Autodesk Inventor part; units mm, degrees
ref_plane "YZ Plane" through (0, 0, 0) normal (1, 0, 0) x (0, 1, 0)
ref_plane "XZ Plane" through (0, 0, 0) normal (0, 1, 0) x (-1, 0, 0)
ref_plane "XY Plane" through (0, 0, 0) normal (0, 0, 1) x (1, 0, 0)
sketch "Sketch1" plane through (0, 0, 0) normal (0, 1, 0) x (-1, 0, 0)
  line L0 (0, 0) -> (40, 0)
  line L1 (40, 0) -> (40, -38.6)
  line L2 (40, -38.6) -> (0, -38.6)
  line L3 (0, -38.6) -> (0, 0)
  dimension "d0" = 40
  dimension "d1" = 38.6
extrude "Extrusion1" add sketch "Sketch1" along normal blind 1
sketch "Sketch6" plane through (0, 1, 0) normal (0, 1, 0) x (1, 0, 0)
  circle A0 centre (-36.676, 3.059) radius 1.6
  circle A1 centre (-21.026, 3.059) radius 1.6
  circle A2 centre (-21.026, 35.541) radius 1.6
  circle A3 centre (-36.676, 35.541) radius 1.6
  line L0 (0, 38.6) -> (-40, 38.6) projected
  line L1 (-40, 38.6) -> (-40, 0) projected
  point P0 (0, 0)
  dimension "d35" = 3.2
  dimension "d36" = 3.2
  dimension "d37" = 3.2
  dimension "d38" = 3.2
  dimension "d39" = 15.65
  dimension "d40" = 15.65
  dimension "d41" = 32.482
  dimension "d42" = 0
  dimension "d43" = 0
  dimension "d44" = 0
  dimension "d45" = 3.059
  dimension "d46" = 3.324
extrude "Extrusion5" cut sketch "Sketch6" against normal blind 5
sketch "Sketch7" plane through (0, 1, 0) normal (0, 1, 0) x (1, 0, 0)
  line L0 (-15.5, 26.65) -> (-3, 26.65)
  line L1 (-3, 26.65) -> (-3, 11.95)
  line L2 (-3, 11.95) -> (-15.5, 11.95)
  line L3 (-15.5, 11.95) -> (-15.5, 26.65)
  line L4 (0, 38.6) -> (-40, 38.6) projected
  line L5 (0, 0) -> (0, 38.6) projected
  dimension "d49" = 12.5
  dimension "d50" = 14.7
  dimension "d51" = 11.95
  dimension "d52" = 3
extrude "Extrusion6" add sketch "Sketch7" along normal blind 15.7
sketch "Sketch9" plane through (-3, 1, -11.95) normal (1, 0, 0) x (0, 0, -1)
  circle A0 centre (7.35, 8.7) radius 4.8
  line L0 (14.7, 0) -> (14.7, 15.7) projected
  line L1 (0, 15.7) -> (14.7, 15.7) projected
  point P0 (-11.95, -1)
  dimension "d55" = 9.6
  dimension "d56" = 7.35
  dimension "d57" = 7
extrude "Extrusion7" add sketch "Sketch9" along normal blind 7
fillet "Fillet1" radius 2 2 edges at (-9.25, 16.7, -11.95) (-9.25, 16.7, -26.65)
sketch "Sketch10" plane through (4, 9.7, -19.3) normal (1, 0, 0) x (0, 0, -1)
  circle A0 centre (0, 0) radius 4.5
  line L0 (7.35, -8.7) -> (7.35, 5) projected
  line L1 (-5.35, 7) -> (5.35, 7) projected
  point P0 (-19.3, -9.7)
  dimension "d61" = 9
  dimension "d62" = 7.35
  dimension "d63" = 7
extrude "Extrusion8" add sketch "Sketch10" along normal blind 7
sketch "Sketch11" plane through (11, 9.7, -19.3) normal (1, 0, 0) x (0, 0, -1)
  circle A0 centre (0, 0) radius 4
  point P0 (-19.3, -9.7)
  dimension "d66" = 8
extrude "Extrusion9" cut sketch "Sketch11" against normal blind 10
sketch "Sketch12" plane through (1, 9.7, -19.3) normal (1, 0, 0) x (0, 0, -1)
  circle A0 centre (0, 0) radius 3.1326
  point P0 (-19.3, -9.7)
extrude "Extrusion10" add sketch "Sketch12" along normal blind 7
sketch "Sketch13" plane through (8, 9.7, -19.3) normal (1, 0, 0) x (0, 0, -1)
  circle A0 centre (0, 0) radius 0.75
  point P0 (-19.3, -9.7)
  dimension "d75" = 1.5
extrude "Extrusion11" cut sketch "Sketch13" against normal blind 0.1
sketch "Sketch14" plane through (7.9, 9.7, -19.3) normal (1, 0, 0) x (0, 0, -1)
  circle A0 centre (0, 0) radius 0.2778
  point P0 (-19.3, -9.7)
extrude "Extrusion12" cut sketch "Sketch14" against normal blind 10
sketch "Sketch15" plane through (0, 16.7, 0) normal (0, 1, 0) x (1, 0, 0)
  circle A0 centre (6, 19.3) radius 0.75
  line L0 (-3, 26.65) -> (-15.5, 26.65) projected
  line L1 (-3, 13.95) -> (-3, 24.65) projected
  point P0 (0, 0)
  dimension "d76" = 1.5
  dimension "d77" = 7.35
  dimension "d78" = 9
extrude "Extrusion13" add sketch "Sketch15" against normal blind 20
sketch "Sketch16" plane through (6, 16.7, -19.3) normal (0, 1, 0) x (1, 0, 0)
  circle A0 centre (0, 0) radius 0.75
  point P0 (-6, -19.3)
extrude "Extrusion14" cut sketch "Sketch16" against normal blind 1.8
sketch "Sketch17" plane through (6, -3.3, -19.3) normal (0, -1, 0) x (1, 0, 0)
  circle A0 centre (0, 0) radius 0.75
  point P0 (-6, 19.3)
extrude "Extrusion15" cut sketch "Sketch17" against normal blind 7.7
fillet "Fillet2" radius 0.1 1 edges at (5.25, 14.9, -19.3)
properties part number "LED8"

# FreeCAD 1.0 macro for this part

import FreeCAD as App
import Part
import Sketcher
from FreeCAD import Vector


def edges_at(feature, points):
    """Names of the edges that pass closest to the given points."""
    edges = feature.Shape.Edges
    near = lambda p: min(range(len(edges)), key=lambda i: edges[i].distToShape(Part.Vertex(*p))[0])
    return sorted({f"Edge{near(p) + 1}" for p in points})

doc = App.newDocument("Part")
body = doc.addObject("PartDesign::Body", "Body")

# Sketch on XZ plane
sketch1 = body.newObject("Sketcher::SketchObject", "Sketch")
sketch1.AttachmentSupport = (doc.getObject("XZ_Plane"), [""])
sketch1.MapMode = "FlatFace"
sketch1.addGeometry([
    Part.LineSegment(Vector(-40, 0, 0), Vector(0, 0, 0)),
    Part.LineSegment(Vector(0, 0, 0), Vector(0, -39, 0)),
    Part.LineSegment(Vector(0, -39, 0), Vector(-40, -39, 0)),
    Part.LineSegment(Vector(-40, -39, 0), Vector(-40, 0, 0)),
], False)
sketch1.addConstraint([
    Sketcher.Constraint("Coincident", 0, 2, 1, 1),
    Sketcher.Constraint("Coincident", 1, 2, 2, 1),
    Sketcher.Constraint("Coincident", 2, 2, 3, 1),
    Sketcher.Constraint("Coincident", 3, 2, 0, 1),
    Sketcher.Constraint("Horizontal", 0),
    Sketcher.Constraint("Vertical", 1),
    Sketcher.Constraint("Horizontal", 2),
    Sketcher.Constraint("Vertical", 3),
    Sketcher.Constraint("Coincident", 0, 2, -1, 1),
    Sketcher.Constraint("DistanceX", 0, 1, 0, 2, 40.0),
    Sketcher.Constraint("DistanceY", 1, 2, 1, 1, 38.6),
])
pad1 = body.newObject("PartDesign::Pad", "Pad")
pad1.Profile = sketch1
pad1.Length = 1
pad1.Reversed = True

# Sketch on XZ plane
sketch2 = body.newObject("Sketcher::SketchObject", "Sketch001")
sketch2.AttachmentSupport = (doc.getObject("XZ_Plane"), [""])
sketch2.MapMode = "FlatFace"
sketch2.AttachmentOffset = App.Placement(Vector(0, 0, -1), App.Rotation())
sketch2.addGeometry([
    Part.Circle(Vector(-36.7, -3.1, 0), Vector(0, 0, 1), 1.6),
    Part.Circle(Vector(-21, -3.1, 0), Vector(0, 0, 1), 1.6),
    Part.Circle(Vector(-21, -35.5, 0), Vector(0, 0, 1), 1.6),
    Part.Circle(Vector(-36.7, -35.5, 0), Vector(0, 0, 1), 1.6),
], False)
sketch2.addConstraint([
    Sketcher.Constraint("Equal", 0, 1),
    Sketcher.Constraint("Equal", 1, 2),
    Sketcher.Constraint("Equal", 2, 3),
    Sketcher.Constraint("Horizontal", 0, 3, 1, 3),
    Sketcher.Constraint("Horizontal", 2, 3, 3, 3),
    Sketcher.Constraint("Vertical", 1, 3, 2, 3),
    Sketcher.Constraint("Vertical", 0, 3, 3, 3),
    Sketcher.Constraint("Diameter", 0, 3.2),
    Sketcher.Constraint("DistanceX", 0, 3, 1, 3, 15.65),
    Sketcher.Constraint("DistanceY", 0, 3, -1, 1, 3.059),
    Sketcher.Constraint("DistanceY", 2, 3, 1, 3, 32.482),
    Sketcher.Constraint("DistanceX", 0, 3, -1, 1, 36.676),
])
pocket1 = body.newObject("PartDesign::Pocket", "Pocket")
pocket1.Profile = sketch2
pocket1.Length = 5
pocket1.Reversed = True

# Sketch on XZ plane
sketch3 = body.newObject("Sketcher::SketchObject", "Sketch002")
sketch3.AttachmentSupport = (doc.getObject("XZ_Plane"), [""])
sketch3.MapMode = "FlatFace"
sketch3.AttachmentOffset = App.Placement(Vector(0, 0, -1), App.Rotation())
sketch3.addGeometry([
    Part.LineSegment(Vector(-3, -27, 0), Vector(-16, -27, 0)),
    Part.LineSegment(Vector(-16, -27, 0), Vector(-16, -12, 0)),
    Part.LineSegment(Vector(-16, -12, 0), Vector(-3, -12, 0)),
    Part.LineSegment(Vector(-3, -12, 0), Vector(-3, -27, 0)),
], False)
sketch3.addConstraint([
    Sketcher.Constraint("Coincident", 0, 2, 1, 1),
    Sketcher.Constraint("Coincident", 1, 2, 2, 1),
    Sketcher.Constraint("Coincident", 2, 2, 3, 1),
    Sketcher.Constraint("Coincident", 3, 2, 0, 1),
    Sketcher.Constraint("Horizontal", 0),
    Sketcher.Constraint("Vertical", 1),
    Sketcher.Constraint("Horizontal", 2),
    Sketcher.Constraint("Vertical", 3),
    Sketcher.Constraint("DistanceX", 0, 2, 0, 1, 12.5),
    Sketcher.Constraint("DistanceY", 1, 1, 1, 2, 14.7),
    Sketcher.Constraint("DistanceX", 2, 2, -1, 1, 3.0),
    Sketcher.Constraint("DistanceY", 1, 2, -1, 1, 11.95),
])
pad2 = body.newObject("PartDesign::Pad", "Pad001")
pad2.Profile = sketch3
pad2.Length = 15.7
pad2.Reversed = True

# Sketch on YZ plane
sketch4 = body.newObject("Sketcher::SketchObject", "Sketch003")
sketch4.AttachmentSupport = (doc.getObject("YZ_Plane"), [""])
sketch4.MapMode = "FlatFace"
sketch4.AttachmentOffset = App.Placement(Vector(0, 0, -3), App.Rotation())
sketch4.addGeometry(Part.Circle(Vector(9.7, -19.3, 0), Vector(0, 0, 1), 4.8), False)
sketch4.addConstraint([
    Sketcher.Constraint("Diameter", 0, 9.6),
    Sketcher.Constraint("DistanceX", -1, 1, 0, 3, 9.7),
    Sketcher.Constraint("DistanceY", 0, 3, -1, 1, 19.3),
])
pad3 = body.newObject("PartDesign::Pad", "Pad002")
pad3.Profile = sketch4
pad3.Length = 7
doc.recompute()

fillet = body.newObject("PartDesign::Fillet", "Fillet")
fillet.Base = (pad3, edges_at(pad3, [(-9.25, 16.7, -11.95), (-9.25, 16.7, -26.65)]))
fillet.Radius = 2

# Sketch on YZ plane
sketch5 = body.newObject("Sketcher::SketchObject", "Sketch004")
sketch5.AttachmentSupport = (doc.getObject("YZ_Plane"), [""])
sketch5.MapMode = "FlatFace"
sketch5.AttachmentOffset = App.Placement(Vector(0, 0, 4), App.Rotation())
sketch5.addGeometry(Part.Circle(Vector(9.7, -19.3, 0), Vector(0, 0, 1), 4.5), False)
sketch5.addConstraint([
    Sketcher.Constraint("Diameter", 0, 9.0),
    Sketcher.Constraint("DistanceX", -1, 1, 0, 3, 9.7),
    Sketcher.Constraint("DistanceY", 0, 3, -1, 1, 19.3),
])
pad4 = body.newObject("PartDesign::Pad", "Pad003")
pad4.Profile = sketch5
pad4.Length = 7

# Sketch on YZ plane
sketch6 = body.newObject("Sketcher::SketchObject", "Sketch005")
sketch6.AttachmentSupport = (doc.getObject("YZ_Plane"), [""])
sketch6.MapMode = "FlatFace"
sketch6.AttachmentOffset = App.Placement(Vector(0, 0, 11), App.Rotation())
sketch6.addGeometry(Part.Circle(Vector(9.7, -19.3, 0), Vector(0, 0, 1), 4), False)
sketch6.addConstraint([
    Sketcher.Constraint("Diameter", 0, 8.0),
    Sketcher.Constraint("DistanceX", -1, 1, 0, 3, 9.7),
    Sketcher.Constraint("DistanceY", 0, 3, -1, 1, 19.3),
])
pocket2 = body.newObject("PartDesign::Pocket", "Pocket001")
pocket2.Profile = sketch6
pocket2.Length = 10

# Sketch on YZ plane
sketch7 = body.newObject("Sketcher::SketchObject", "Sketch006")
sketch7.AttachmentSupport = (doc.getObject("YZ_Plane"), [""])
sketch7.MapMode = "FlatFace"
sketch7.AttachmentOffset = App.Placement(Vector(0, 0, 1), App.Rotation())
sketch7.addGeometry(Part.Circle(Vector(9.7, -19.3, 0), Vector(0, 0, 1), 3.1), False)
sketch7.addConstraint([
    Sketcher.Constraint("Diameter", 0, 6.2652),
    Sketcher.Constraint("DistanceX", -1, 1, 0, 3, 9.7),
    Sketcher.Constraint("DistanceY", 0, 3, -1, 1, 19.3),
])
pad5 = body.newObject("PartDesign::Pad", "Pad004")
pad5.Profile = sketch7
pad5.Length = 7

# Sketch on YZ plane
sketch8 = body.newObject("Sketcher::SketchObject", "Sketch007")
sketch8.AttachmentSupport = (doc.getObject("YZ_Plane"), [""])
sketch8.MapMode = "FlatFace"
sketch8.AttachmentOffset = App.Placement(Vector(0, 0, 8), App.Rotation())
sketch8.addGeometry(Part.Circle(Vector(9.7, -19.3, 0), Vector(0, 0, 1), 0.8), False)
sketch8.addConstraint([
    Sketcher.Constraint("Diameter", 0, 1.5),
    Sketcher.Constraint("DistanceX", -1, 1, 0, 3, 9.7),
    Sketcher.Constraint("DistanceY", 0, 3, -1, 1, 19.3),
])
pocket3 = body.newObject("PartDesign::Pocket", "Pocket002")
pocket3.Profile = sketch8
pocket3.Length = 0.1

# Sketch on YZ plane
sketch9 = body.newObject("Sketcher::SketchObject", "Sketch008")
sketch9.AttachmentSupport = (doc.getObject("YZ_Plane"), [""])
sketch9.MapMode = "FlatFace"
sketch9.AttachmentOffset = App.Placement(Vector(0, 0, 7.9), App.Rotation())
sketch9.addGeometry(Part.Circle(Vector(9.7, -19.3, 0), Vector(0, 0, 1), 0.28), False)
sketch9.addConstraint([
    Sketcher.Constraint("Diameter", 0, 0.5556),
    Sketcher.Constraint("DistanceX", -1, 1, 0, 3, 9.7),
    Sketcher.Constraint("DistanceY", 0, 3, -1, 1, 19.3),
])
pocket4 = body.newObject("PartDesign::Pocket", "Pocket003")
pocket4.Profile = sketch9
pocket4.Length = 10

# Sketch on XZ plane
sketch10 = body.newObject("Sketcher::SketchObject", "Sketch009")
sketch10.AttachmentSupport = (doc.getObject("XZ_Plane"), [""])
sketch10.MapMode = "FlatFace"
sketch10.AttachmentOffset = App.Placement(Vector(0, 0, -16.7), App.Rotation())
sketch10.addGeometry(Part.Circle(Vector(6, -19.3, 0), Vector(0, 0, 1), 0.8), False)
sketch10.addConstraint([
    Sketcher.Constraint("Diameter", 0, 1.5),
    Sketcher.Constraint("DistanceX", -1, 1, 0, 3, 6.0),
    Sketcher.Constraint("DistanceY", 0, 3, -1, 1, 19.3),
])
pad6 = body.newObject("PartDesign::Pad", "Pad005")
pad6.Profile = sketch10
pad6.Length = 20

# Sketch on XZ plane
sketch11 = body.newObject("Sketcher::SketchObject", "Sketch010")
sketch11.AttachmentSupport = (doc.getObject("XZ_Plane"), [""])
sketch11.MapMode = "FlatFace"
sketch11.AttachmentOffset = App.Placement(Vector(0, 0, -16.7), App.Rotation())
sketch11.addGeometry(Part.Circle(Vector(6, -19.3, 0), Vector(0, 0, 1), 0.8), False)
sketch11.addConstraint([
    Sketcher.Constraint("Diameter", 0, 1.5),
    Sketcher.Constraint("DistanceX", -1, 1, 0, 3, 6.0),
    Sketcher.Constraint("DistanceY", 0, 3, -1, 1, 19.3),
])
pocket5 = body.newObject("PartDesign::Pocket", "Pocket004")
pocket5.Profile = sketch11
pocket5.Length = 1.8
pocket5.Reversed = True

# Sketch on XZ plane
sketch12 = body.newObject("Sketcher::SketchObject", "Sketch011")
sketch12.AttachmentSupport = (doc.getObject("XZ_Plane"), [""])
sketch12.MapMode = "FlatFace"
sketch12.AttachmentOffset = App.Placement(Vector(0, 0, 3.3), App.Rotation())
sketch12.addGeometry(Part.Circle(Vector(6, -19.3, 0), Vector(0, 0, 1), 0.8), False)
sketch12.addConstraint([
    Sketcher.Constraint("Diameter", 0, 1.5),
    Sketcher.Constraint("DistanceX", -1, 1, 0, 3, 6.0),
    Sketcher.Constraint("DistanceY", 0, 3, -1, 1, 19.3),
])
pocket6 = body.newObject("PartDesign::Pocket", "Pocket005")
pocket6.Profile = sketch12
pocket6.Length = 7.7
doc.recompute()

fillet2 = body.newObject("PartDesign::Fillet", "Fillet001")
fillet2.Base = (pocket6, edges_at(pocket6, [(5.25, 14.9, -19.3)]))
fillet2.Radius = 0.1

doc.recompute()
